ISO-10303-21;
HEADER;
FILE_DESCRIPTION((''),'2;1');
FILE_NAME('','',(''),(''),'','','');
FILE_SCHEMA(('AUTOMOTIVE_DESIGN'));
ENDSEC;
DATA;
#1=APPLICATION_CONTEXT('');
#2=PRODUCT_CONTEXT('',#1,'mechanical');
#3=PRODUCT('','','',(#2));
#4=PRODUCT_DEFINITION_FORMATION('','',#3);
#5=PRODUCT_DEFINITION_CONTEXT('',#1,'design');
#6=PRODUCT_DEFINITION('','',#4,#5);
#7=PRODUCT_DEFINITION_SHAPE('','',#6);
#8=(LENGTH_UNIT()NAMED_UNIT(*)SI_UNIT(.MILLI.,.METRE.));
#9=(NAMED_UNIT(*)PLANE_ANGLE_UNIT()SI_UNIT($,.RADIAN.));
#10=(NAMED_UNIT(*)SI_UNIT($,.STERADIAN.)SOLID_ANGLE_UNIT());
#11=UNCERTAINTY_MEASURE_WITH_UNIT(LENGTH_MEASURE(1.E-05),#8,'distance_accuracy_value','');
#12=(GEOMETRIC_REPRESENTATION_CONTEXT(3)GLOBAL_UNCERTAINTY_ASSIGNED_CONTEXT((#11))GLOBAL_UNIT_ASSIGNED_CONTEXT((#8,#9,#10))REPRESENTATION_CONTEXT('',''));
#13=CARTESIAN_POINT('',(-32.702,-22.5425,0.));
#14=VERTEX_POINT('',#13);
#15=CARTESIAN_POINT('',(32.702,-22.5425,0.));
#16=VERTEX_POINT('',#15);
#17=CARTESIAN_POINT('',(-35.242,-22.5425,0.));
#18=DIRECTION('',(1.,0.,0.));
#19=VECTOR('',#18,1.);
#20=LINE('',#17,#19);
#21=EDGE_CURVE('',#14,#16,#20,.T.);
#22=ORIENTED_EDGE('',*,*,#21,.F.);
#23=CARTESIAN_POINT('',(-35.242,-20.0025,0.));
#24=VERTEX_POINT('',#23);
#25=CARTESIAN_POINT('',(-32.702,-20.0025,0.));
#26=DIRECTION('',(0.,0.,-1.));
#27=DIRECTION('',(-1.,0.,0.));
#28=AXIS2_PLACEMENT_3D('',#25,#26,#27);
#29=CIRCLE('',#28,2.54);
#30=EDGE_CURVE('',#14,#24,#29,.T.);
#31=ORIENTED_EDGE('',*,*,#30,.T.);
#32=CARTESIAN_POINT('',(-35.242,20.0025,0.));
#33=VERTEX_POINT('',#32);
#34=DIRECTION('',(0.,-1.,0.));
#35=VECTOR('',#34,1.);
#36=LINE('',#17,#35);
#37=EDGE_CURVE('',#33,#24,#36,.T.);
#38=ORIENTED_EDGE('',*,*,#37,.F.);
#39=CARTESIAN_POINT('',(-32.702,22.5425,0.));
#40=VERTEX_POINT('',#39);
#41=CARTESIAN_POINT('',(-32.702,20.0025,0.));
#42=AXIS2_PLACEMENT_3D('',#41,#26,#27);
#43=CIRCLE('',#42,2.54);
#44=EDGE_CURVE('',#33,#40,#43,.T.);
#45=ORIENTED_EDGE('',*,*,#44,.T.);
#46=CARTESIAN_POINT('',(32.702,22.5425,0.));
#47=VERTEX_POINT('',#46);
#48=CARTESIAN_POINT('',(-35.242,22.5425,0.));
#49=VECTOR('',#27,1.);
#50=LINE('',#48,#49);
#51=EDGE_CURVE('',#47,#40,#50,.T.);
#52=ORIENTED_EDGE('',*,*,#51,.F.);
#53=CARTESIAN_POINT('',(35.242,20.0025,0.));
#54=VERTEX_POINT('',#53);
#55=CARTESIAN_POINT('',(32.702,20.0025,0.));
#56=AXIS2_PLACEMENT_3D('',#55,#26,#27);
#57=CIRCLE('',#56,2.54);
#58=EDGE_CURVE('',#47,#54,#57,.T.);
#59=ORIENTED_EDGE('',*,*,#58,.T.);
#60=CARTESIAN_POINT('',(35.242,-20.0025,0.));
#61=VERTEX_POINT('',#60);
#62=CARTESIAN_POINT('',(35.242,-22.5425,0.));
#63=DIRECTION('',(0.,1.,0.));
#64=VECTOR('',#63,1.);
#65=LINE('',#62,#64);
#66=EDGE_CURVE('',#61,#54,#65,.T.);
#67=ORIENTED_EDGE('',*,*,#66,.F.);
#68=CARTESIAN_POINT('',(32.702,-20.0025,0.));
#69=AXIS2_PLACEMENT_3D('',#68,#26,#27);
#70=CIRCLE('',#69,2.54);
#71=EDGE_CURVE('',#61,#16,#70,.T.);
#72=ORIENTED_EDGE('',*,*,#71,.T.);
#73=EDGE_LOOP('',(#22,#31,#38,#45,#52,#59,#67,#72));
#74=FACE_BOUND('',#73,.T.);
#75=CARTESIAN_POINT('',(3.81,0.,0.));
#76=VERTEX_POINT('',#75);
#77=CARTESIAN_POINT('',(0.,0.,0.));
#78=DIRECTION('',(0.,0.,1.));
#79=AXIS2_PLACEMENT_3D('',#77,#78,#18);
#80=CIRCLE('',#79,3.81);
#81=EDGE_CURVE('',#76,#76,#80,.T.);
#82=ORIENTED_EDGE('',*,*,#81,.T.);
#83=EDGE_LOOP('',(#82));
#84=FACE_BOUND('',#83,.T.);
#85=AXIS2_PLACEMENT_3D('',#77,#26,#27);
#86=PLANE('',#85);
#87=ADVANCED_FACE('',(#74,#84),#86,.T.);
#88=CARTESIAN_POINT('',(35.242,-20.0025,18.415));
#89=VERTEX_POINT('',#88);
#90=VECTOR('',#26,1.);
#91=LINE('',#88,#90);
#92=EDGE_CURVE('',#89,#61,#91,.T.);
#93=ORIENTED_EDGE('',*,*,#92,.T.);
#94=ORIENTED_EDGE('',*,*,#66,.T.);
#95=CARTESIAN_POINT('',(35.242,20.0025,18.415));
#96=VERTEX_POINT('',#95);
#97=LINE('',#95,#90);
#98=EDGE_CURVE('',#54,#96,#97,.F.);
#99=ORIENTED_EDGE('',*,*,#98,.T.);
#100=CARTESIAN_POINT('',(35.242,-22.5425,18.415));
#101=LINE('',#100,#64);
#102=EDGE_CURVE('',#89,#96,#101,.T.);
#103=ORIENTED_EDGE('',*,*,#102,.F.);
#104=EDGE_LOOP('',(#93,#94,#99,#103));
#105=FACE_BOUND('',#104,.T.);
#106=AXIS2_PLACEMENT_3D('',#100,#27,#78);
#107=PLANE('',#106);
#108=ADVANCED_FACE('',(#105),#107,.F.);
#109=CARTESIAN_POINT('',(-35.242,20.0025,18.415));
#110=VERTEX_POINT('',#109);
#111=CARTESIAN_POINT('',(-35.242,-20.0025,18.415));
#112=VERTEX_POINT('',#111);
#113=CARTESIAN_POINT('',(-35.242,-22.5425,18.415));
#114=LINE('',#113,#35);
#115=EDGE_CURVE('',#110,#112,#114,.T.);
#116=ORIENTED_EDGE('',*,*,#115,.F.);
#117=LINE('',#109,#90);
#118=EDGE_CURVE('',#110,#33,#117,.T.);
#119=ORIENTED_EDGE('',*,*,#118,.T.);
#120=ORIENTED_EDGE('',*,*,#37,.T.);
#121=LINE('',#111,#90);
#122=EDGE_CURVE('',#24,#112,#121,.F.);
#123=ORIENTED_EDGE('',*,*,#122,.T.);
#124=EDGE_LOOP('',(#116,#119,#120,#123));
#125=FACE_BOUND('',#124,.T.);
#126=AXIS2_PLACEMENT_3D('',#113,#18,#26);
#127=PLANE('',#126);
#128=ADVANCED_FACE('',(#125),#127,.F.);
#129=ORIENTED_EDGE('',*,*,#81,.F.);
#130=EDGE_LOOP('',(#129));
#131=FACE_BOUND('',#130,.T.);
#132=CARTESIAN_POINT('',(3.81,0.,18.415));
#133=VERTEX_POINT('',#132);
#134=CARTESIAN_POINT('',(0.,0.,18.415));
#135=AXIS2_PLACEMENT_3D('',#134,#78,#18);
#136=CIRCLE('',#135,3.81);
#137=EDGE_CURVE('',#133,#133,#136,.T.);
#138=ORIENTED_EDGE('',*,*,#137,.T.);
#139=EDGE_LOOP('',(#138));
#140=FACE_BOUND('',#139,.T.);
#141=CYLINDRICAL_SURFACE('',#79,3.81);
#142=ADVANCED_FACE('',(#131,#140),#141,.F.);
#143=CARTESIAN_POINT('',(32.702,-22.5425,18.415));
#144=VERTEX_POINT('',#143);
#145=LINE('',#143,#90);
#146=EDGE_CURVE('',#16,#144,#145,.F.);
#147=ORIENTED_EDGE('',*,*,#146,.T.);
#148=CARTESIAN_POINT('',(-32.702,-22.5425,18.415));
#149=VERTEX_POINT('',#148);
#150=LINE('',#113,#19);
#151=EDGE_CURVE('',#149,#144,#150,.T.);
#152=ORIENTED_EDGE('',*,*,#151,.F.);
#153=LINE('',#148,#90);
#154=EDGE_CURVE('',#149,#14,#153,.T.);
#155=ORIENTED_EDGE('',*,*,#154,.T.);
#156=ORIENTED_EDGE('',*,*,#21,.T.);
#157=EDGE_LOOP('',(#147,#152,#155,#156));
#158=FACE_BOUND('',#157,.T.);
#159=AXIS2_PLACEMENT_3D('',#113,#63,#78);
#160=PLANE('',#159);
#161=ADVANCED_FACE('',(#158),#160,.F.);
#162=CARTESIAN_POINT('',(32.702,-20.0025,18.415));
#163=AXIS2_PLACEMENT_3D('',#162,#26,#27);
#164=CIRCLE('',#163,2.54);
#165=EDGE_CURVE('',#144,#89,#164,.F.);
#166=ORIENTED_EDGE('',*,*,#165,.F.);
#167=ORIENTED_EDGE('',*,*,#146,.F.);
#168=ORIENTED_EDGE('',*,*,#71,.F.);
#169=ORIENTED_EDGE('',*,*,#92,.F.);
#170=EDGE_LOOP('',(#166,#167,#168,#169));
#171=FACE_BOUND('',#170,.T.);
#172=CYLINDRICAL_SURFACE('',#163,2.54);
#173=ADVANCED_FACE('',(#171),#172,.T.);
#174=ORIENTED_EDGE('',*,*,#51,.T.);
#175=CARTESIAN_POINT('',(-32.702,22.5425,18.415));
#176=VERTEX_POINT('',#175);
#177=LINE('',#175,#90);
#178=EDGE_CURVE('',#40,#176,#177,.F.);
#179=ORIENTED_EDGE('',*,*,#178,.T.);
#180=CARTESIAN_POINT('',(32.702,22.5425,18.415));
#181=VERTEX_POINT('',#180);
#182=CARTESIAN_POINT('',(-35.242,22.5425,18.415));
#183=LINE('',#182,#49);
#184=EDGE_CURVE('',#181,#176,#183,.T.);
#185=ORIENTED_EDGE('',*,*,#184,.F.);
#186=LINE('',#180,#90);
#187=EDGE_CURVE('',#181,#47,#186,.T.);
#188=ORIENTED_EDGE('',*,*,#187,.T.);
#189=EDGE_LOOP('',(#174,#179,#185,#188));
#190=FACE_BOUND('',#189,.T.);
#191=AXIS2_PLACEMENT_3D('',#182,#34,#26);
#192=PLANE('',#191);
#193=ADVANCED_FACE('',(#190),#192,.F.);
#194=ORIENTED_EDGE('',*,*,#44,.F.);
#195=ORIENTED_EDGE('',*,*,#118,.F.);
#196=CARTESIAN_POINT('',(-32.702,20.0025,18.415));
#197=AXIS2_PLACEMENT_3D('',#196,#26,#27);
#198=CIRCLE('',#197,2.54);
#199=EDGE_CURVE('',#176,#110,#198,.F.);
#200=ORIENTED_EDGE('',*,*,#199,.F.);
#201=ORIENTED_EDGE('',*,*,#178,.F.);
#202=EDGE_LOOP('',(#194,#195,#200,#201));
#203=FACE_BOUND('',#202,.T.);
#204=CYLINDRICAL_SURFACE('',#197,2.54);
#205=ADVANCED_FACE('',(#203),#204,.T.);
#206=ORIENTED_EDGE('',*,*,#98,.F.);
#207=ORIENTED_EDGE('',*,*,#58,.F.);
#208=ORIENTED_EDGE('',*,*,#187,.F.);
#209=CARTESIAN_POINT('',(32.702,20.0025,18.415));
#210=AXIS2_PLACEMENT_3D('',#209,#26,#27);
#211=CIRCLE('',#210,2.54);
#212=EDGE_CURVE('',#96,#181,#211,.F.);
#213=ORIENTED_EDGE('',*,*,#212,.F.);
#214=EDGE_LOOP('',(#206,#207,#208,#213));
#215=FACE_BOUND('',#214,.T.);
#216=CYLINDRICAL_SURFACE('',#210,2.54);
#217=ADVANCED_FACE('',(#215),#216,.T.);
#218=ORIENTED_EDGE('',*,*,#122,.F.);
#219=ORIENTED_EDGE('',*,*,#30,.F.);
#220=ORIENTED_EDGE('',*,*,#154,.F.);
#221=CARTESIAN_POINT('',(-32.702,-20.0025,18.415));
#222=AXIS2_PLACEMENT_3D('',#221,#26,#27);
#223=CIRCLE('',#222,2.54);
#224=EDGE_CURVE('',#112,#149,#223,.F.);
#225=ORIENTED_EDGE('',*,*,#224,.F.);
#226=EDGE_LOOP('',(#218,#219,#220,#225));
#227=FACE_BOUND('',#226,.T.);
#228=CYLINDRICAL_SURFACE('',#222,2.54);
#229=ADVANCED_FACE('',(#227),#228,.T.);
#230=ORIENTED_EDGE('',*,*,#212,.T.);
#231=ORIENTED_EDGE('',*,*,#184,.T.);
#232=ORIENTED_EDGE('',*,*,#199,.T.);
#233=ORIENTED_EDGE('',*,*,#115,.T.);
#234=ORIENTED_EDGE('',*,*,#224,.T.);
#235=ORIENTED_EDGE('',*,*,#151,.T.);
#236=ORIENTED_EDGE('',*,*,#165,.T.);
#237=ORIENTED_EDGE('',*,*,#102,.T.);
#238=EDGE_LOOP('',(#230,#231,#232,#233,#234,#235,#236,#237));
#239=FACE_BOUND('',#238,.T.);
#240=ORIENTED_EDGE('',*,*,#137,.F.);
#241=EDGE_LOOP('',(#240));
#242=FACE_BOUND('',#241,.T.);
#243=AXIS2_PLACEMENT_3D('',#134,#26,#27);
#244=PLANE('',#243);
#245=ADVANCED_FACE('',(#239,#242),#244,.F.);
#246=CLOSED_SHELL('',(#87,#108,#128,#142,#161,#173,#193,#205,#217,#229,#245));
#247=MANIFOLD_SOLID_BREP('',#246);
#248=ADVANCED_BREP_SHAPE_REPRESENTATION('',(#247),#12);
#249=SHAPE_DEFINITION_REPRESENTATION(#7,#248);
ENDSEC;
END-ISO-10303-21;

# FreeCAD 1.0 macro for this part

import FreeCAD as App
import Part
import Sketcher

V = App.Vector
Q = App.Units.Quantity


def edges_at(feature, points):
    """Names of the edges that pass closest to the given points."""
    edges = feature.Shape.Edges
    near = lambda p: min(range(len(edges)), key=lambda i: edges[i].distToShape(Part.Vertex(*p))[0])
    return sorted({f"Edge{near(p) + 1}" for p in points})


def add_polygon(sketch, points):
    """Adds a closed chain of lines whose ends are joined by coincident constraints."""
    first, n = sketch.GeometryCount, len(points)
    for a, b in zip(points, points[1:] + points[:1]):
        sketch.addGeometry(Part.LineSegment(App.Vector(*a, 0), App.Vector(*b, 0)), False)
    for i in range(n):
        sketch.addConstraint(Sketcher.Constraint("Coincident", first + i, 2, first + (i + 1) % n, 1))

doc = App.newDocument("Part")
params = doc.addObject("Spreadsheet::Sheet", "Params")
for row, (alias, value) in enumerate([
    ("sketch1_height", "1.775 in"),
    ("pad1_length", "0.725 in"),
    ("fillet_radius", "0.1 in"),
    ("sketch2_diameter", "0.3 in"),
], start=1):
    params.set(f"A{row}", alias)
    params.set(f"B{row}", "=" + value)
    params.setAlias(f"B{row}", alias)

body = doc.addObject("PartDesign::Body", "Body")

sketch1 = doc.addObject("Sketcher::SketchObject", "Sketch")
body.addObject(sketch1)
sketch1.AttachmentSupport = (doc.XY_Plane, [""])
sketch1.MapMode = "FlatFace"
add_polygon(sketch1, [(-35, 23), (-35, -23), (35, -23), (35, 23)])
sketch1.addConstraint([
    Sketcher.Constraint("Vertical", 0),
    Sketcher.Constraint("Horizontal", 1),
    Sketcher.Constraint("Vertical", 2),
    Sketcher.Constraint("Horizontal", 3),
    Sketcher.Constraint("Symmetric", 0, 2, 2, 2, -1, 1),
    Sketcher.Constraint("DistanceY", 0, 2, 0, 1, Q("1.775 in")),
    Sketcher.Constraint("DistanceX", 1, 1, 1, 2, Q("70.484 mm")),
])
sketch1.setExpression("Constraints[9]", "Params.sketch1_height")
pad1 = doc.addObject("PartDesign::Pad", "Pad")
body.addObject(pad1)
pad1.Profile = sketch1
pad1.setExpression("Length", "Params.pad1_length")
doc.recompute()

fillet = doc.addObject("PartDesign::Fillet", "Fillet")
body.addObject(fillet)
fillet.Base = (pad1, edges_at(pad1, [
    (35.242, -22.543, 9.207),
    (-35.242, -22.543, 9.207),
    (-35.242, 22.543, 9.207),
    (35.242, 22.543, 9.207),
]))
fillet.setExpression("Radius", "Params.fillet_radius")

sketch2 = doc.addObject("Sketcher::SketchObject", "Sketch001")
body.addObject(sketch2)
sketch2.AttachmentSupport = (doc.XY_Plane, [""])
sketch2.MapMode = "FlatFace"
sketch2.AttachmentOffset = App.Placement(V(0, 0, 0.725 * 25.4), App.Rotation())
sketch2.addGeometry(Part.Circle(V(0, 0, 0), V(0, 0, 1), 3.8), False)
sketch2.addConstraint([
    Sketcher.Constraint("Coincident", 0, 3, -1, 1),
    Sketcher.Constraint("Diameter", 0, Q("0.3 in")),
])
sketch2.setExpression("Constraints[1]", "Params.sketch2_diameter")
pocket1 = doc.addObject("PartDesign::Pocket", "Pocket")
body.addObject(pocket1)
pocket1.Profile = sketch2
pocket1.Type = "ThroughAll"

doc.recompute()
